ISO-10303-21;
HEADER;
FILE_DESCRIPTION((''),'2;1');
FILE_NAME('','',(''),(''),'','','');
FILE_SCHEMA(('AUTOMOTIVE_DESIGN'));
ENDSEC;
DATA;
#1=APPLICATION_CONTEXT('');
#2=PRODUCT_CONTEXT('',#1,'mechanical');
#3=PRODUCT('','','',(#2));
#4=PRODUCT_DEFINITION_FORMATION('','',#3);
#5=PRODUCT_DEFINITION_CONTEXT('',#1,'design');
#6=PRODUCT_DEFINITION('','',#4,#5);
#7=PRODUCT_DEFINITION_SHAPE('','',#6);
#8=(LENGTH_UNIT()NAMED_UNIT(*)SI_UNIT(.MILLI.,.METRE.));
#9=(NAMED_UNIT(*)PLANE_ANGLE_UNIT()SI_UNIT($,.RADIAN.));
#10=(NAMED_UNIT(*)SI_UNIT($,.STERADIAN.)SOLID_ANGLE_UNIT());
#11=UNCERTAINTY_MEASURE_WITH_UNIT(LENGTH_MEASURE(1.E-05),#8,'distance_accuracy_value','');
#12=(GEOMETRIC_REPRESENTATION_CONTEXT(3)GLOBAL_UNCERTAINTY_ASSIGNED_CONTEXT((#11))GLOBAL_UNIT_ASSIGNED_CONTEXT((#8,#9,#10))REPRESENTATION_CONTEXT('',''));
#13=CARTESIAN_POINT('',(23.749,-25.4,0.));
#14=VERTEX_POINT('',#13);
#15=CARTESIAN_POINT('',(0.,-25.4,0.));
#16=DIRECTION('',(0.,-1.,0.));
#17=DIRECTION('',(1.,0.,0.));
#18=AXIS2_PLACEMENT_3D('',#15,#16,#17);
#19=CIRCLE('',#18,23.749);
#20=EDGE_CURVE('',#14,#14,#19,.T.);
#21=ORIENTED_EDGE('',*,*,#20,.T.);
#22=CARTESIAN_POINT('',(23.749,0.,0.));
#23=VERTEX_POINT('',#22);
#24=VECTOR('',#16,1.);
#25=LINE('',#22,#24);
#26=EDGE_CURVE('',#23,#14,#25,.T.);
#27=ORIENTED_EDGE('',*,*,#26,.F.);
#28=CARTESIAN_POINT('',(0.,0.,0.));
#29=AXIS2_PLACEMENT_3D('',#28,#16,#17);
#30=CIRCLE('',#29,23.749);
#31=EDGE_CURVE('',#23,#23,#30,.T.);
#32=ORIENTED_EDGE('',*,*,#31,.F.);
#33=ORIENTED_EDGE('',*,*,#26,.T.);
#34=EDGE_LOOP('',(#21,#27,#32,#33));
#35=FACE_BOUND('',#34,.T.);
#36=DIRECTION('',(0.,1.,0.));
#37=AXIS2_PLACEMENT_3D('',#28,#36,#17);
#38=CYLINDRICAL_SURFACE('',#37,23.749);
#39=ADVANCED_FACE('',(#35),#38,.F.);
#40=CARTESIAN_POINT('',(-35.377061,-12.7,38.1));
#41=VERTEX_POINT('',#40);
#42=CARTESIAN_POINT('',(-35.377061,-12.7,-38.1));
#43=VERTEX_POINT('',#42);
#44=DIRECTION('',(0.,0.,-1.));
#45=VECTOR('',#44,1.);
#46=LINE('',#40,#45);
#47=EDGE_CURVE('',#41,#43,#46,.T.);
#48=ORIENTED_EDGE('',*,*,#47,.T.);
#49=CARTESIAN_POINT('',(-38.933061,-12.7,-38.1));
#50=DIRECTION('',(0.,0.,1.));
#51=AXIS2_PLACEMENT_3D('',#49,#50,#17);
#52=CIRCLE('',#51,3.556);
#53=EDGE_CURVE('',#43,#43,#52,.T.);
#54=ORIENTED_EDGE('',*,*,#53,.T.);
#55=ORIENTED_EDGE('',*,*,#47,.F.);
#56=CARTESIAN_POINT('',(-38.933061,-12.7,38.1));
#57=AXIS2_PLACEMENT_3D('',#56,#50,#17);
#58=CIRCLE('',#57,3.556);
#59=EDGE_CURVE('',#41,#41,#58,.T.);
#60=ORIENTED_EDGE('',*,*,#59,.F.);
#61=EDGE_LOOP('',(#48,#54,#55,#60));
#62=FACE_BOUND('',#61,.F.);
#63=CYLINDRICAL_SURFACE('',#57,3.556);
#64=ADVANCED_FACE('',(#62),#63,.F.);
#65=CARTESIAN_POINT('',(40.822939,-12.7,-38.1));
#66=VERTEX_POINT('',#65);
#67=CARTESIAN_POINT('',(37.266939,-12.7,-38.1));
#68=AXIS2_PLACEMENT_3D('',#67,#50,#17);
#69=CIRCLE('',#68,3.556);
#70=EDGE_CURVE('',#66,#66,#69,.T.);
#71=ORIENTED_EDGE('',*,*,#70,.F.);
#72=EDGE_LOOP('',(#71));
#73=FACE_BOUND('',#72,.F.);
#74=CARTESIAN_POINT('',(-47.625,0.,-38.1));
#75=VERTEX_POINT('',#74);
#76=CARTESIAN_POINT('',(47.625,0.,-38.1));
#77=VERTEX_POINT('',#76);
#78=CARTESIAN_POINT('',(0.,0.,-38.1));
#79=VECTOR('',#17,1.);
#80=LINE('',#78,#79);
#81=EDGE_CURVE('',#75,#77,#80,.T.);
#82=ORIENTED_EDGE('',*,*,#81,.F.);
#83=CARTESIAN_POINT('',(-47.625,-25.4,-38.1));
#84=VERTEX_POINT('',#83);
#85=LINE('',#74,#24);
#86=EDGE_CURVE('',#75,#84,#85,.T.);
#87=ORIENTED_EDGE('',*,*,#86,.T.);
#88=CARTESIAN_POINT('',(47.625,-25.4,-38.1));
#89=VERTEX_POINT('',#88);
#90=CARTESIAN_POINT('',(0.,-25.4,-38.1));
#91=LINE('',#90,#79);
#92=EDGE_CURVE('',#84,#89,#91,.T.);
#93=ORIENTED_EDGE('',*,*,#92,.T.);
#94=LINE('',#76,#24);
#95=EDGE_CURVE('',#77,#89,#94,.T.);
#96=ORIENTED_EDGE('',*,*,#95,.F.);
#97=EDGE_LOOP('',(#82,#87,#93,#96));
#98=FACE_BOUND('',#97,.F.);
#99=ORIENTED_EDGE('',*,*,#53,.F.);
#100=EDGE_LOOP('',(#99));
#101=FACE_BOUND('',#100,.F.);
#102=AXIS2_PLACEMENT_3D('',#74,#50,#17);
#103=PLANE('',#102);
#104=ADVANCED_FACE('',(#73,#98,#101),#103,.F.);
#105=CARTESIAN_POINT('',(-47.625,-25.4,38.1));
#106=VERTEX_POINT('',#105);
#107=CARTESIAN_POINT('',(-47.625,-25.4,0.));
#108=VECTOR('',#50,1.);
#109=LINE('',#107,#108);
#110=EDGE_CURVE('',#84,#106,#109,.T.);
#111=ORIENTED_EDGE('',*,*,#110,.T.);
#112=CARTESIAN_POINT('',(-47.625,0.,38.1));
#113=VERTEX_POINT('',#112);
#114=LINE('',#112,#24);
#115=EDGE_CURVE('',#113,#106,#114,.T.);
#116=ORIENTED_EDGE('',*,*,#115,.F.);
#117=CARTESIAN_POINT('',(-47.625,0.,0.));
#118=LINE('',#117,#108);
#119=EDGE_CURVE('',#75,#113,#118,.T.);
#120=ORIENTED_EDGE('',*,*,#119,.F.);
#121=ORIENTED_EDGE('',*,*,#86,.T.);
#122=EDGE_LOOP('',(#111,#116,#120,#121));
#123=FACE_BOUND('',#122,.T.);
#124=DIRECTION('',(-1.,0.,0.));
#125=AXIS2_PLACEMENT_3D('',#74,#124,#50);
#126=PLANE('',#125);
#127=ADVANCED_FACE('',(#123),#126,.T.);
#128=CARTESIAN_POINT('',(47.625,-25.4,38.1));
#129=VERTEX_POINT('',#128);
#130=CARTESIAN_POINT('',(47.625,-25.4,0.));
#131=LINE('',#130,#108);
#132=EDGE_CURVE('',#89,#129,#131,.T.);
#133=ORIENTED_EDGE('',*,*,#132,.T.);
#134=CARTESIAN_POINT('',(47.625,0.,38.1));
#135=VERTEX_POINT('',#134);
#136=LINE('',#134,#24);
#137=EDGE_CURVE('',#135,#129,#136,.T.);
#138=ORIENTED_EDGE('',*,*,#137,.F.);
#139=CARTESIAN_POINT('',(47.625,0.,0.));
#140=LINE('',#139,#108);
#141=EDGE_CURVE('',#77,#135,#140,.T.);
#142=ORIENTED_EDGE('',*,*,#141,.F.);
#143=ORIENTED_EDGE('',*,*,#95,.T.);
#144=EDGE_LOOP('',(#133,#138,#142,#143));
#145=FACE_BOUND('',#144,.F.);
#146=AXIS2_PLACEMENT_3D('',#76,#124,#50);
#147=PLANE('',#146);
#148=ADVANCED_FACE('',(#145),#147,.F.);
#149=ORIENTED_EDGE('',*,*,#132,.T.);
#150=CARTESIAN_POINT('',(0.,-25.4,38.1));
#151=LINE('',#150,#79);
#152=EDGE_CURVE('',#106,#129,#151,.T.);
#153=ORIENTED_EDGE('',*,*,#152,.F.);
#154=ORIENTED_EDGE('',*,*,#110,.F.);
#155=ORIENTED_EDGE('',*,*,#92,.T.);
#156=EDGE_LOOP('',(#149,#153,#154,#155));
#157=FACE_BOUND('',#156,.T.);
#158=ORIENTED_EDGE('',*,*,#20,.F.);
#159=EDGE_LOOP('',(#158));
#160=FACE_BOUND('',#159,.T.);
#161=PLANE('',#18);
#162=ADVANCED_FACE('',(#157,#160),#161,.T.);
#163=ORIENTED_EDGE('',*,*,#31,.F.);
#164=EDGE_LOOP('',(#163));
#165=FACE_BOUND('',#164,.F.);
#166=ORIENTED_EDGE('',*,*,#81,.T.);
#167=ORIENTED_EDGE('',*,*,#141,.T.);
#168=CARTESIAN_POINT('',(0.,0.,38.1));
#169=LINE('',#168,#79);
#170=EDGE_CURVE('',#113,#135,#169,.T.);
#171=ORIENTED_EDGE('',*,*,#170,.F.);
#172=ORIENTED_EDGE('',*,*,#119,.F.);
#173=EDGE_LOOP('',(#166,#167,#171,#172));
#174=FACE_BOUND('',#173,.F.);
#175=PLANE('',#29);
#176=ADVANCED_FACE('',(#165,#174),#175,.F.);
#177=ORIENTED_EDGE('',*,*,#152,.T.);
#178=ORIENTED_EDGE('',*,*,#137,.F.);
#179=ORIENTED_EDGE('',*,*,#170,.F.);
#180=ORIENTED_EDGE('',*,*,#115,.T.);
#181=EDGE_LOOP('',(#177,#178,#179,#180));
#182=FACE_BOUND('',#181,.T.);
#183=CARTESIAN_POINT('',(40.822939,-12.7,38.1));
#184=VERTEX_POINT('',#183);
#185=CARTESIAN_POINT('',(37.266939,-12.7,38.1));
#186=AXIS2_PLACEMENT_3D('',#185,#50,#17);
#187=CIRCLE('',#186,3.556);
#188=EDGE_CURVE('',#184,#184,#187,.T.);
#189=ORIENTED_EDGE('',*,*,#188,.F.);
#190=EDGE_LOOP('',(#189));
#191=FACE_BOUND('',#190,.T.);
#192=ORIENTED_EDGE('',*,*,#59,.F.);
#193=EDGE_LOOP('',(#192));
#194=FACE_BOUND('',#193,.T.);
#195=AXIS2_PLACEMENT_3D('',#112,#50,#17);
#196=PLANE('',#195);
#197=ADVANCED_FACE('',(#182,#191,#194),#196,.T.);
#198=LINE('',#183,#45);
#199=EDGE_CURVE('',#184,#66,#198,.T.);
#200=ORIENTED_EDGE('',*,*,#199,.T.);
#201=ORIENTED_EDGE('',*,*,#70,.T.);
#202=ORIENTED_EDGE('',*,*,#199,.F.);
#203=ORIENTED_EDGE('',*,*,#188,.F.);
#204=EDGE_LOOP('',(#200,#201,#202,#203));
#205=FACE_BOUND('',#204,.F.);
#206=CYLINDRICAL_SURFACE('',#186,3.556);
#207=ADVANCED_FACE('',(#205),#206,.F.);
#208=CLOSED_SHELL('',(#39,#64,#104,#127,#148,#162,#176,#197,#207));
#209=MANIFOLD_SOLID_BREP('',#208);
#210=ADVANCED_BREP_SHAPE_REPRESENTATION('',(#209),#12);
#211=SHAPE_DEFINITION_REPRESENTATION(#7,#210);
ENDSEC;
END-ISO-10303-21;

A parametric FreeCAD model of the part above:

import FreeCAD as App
import Part
import Sketcher
from FreeCAD import Vector
Q = App.Units.Quantity

doc = App.newDocument("Part")
body = doc.addObject("PartDesign::Body", "Body")

# Sketch on XZ plane
sketch1 = body.newObject("Sketcher::SketchObject", "Sketch")
sketch1.AttachmentSupport = (doc.getObject("XZ_Plane"), [""])
sketch1.MapMode = "FlatFace"
sketch1.addGeometry(Part.LineSegment(Vector(-48, 38, 0), Vector(-48, -38, 0)), False)
sketch1.addGeometry(Part.LineSegment(Vector(-48, -38, 0), Vector(48, -38, 0)), False)
sketch1.addGeometry(Part.LineSegment(Vector(48, -38, 0), Vector(48, 38, 0)), False)
sketch1.addGeometry(Part.LineSegment(Vector(48, 38, 0), Vector(-48, 38, 0)), False)
sketch1.addGeometry(Part.Circle(Vector(0, 0, 0), Vector(0, 0, 1), 24), False)
sketch1.addConstraint(Sketcher.Constraint("Coincident", 0, 2, 1, 1))
sketch1.addConstraint(Sketcher.Constraint("Coincident", 1, 2, 2, 1))
sketch1.addConstraint(Sketcher.Constraint("Coincident", 2, 2, 3, 1))
sketch1.addConstraint(Sketcher.Constraint("Coincident", 3, 2, 0, 1))
sketch1.addConstraint(Sketcher.Constraint("Vertical", 0))
sketch1.addConstraint(Sketcher.Constraint("Horizontal", 1))
sketch1.addConstraint(Sketcher.Constraint("Vertical", 2))
sketch1.addConstraint(Sketcher.Constraint("Horizontal", 3))
sketch1.addConstraint(Sketcher.Constraint("Coincident", 4, 3, -1, 1))
sketch1.addConstraint(Sketcher.Constraint("Symmetric", 0, 2, 2, 2, -1, 1))
sketch1.addConstraint(Sketcher.Constraint("Diameter", 4, Q("1.87 in")))
sketch1.addConstraint(Sketcher.Constraint("DistanceY", 0, 2, 0, 1, Q("3 in")))
sketch1.addConstraint(Sketcher.Constraint("DistanceX", 1, 1, 1, 2, Q("3.75 in")))
pad1 = body.newObject("PartDesign::Pad", "Pad")
pad1.Profile = sketch1
pad1.Length = Q("1 in")

# Sketch on XY plane
sketch2 = body.newObject("Sketcher::SketchObject", "Sketch001")
sketch2.AttachmentSupport = (doc.getObject("XY_Plane"), [""])
sketch2.MapMode = "FlatFace"
sketch2.AttachmentOffset = App.Placement(Vector(0, 0, 1.5 * 25.4), App.Rotation())
sketch2.addGeometry(Part.Circle(Vector(-38.9, -12.7, 0), Vector(0, 0, 1), 3.6), False)
sketch2.addGeometry(Part.Circle(Vector(37.3, -12.7, 0), Vector(0, 0, 1), 3.6), False)
sketch2.addConstraint(Sketcher.Constraint("Equal", 0, 1))
sketch2.addConstraint(Sketcher.Constraint("Horizontal", 0, 3, 1, 3))
sketch2.addConstraint(Sketcher.Constraint("Diameter", 0, Q("0.28 in")))
sketch2.addConstraint(Sketcher.Constraint("DistanceX", 0, 3, 1, 3, Q("3 in")))
sketch2.addConstraint(Sketcher.Constraint("DistanceY", 0, 3, -1, 1, Q("0.5 in")))
sketch2.addConstraint(Sketcher.Constraint("DistanceX", 0, 3, -1, 1, 38.933061))
pocket1 = body.newObject("PartDesign::Pocket", "Pocket")
pocket1.Profile = sketch2
pocket1.Type = "ThroughAll"

doc.recompute()
